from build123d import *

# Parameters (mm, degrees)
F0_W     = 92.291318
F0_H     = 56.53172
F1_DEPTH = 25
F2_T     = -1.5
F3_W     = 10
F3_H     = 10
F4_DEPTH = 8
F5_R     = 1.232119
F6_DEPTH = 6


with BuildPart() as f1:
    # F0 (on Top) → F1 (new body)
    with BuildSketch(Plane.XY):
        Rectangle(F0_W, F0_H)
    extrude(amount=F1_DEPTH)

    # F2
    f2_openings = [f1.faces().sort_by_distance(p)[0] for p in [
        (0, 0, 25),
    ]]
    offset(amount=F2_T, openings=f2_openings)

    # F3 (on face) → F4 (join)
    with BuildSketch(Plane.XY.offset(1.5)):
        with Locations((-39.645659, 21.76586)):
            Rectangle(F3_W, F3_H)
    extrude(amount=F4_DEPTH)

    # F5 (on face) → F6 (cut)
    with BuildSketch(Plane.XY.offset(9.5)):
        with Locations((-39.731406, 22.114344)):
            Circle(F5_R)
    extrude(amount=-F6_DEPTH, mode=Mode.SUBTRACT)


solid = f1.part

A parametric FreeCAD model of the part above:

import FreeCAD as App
import Part
import Sketcher
from FreeCAD import Vector


def faces_at(feature, points):
    """Names of the faces that lie closest to the given points."""
    faces = feature.Shape.Faces
    near = lambda p: min(range(len(faces)), key=lambda i: faces[i].distToShape(Part.Vertex(*p))[0])
    return sorted({f"Face{near(p) + 1}" for p in points})


def add_polygon(sketch, points):
    """Adds a closed chain of lines whose ends are joined by coincident constraints."""
    first, n = sketch.GeometryCount, len(points)
    for a, b in zip(points, points[1:] + points[:1]):
        sketch.addGeometry(Part.LineSegment(App.Vector(*a, 0), App.Vector(*b, 0)), False)
    for i in range(n):
        sketch.addConstraint(Sketcher.Constraint("Coincident", first + i, 2, first + (i + 1) % n, 1))

doc = App.newDocument("Part")
body = doc.addObject("PartDesign::Body", "Body")

# Sketch on XY plane
sketch1 = body.newObject("Sketcher::SketchObject", "Sketch")
sketch1.AttachmentSupport = (doc.getObject("XY_Plane"), [""])
sketch1.MapMode = "FlatFace"
add_polygon(sketch1, [(-46, 28), (-46, -28), (46, -28), (46, 28)])  # lines 0-3
sketch1.addConstraint([
    Sketcher.Constraint("Vertical", 0),
    Sketcher.Constraint("Horizontal", 1),
    Sketcher.Constraint("Vertical", 2),
    Sketcher.Constraint("Horizontal", 3),
    Sketcher.Constraint("Symmetric", 0, 2, 2, 2, -1, 1),
    Sketcher.Constraint("DistanceX", 1, 1, 1, 2, 92.291318),
    Sketcher.Constraint("DistanceY", 0, 2, 0, 1, 56.53172),
])
pad1 = body.newObject("PartDesign::Pad", "Pad")
pad1.Profile = sketch1
pad1.Length = 25
doc.recompute()

thickness = body.newObject("PartDesign::Thickness", "Thickness")
thickness.Base = (pad1, faces_at(pad1, [(0, 0, 25)]))
thickness.Value = 1.5
thickness.Reversed = True
thickness.Join = "Arc"

# Sketch on XY plane
sketch2 = body.newObject("Sketcher::SketchObject", "Sketch001")
sketch2.AttachmentSupport = (doc.getObject("XY_Plane"), [""])
sketch2.MapMode = "FlatFace"
sketch2.AttachmentOffset = App.Placement(Vector(0, 0, 1.5), App.Rotation())
add_polygon(sketch2, [(-45, 27), (-45, 17), (-35, 17), (-35, 27)])  # lines 0-3
sketch2.addConstraint([
    Sketcher.Constraint("Vertical", 0),
    Sketcher.Constraint("Horizontal", 1),
    Sketcher.Constraint("Vertical", 2),
    Sketcher.Constraint("Horizontal", 3),
    Sketcher.Constraint("Equal", 3, 0),
    Sketcher.Constraint("DistanceX", 1, 1, 1, 2, 10.0),
    Sketcher.Constraint("DistanceX", 0, 2, -1, 1, 44.645659),
    Sketcher.Constraint("DistanceY", -1, 1, 0, 2, 16.76586),
])
pad2 = body.newObject("PartDesign::Pad", "Pad001")
pad2.Profile = sketch2
pad2.Length = 8

# Sketch on XY plane
sketch3 = body.newObject("Sketcher::SketchObject", "Sketch002")
sketch3.AttachmentSupport = (doc.getObject("XY_Plane"), [""])
sketch3.MapMode = "FlatFace"
sketch3.AttachmentOffset = App.Placement(Vector(0, 0, 9.5), App.Rotation())
sketch3.addGeometry(Part.Circle(Vector(-39.7, 22.1, 0), Vector(0, 0, 1), 1.2), False)
sketch3.addConstraint([
    Sketcher.Constraint("Diameter", 0, 2.464238),
    Sketcher.Constraint("DistanceX", 0, 3, -1, 1, 39.731406),
    Sketcher.Constraint("DistanceY", -1, 1, 0, 3, 22.114344),
])
pocket1 = body.newObject("PartDesign::Pocket", "Pocket")
pocket1.Profile = sketch3
pocket1.Length = 6

doc.recompute()
